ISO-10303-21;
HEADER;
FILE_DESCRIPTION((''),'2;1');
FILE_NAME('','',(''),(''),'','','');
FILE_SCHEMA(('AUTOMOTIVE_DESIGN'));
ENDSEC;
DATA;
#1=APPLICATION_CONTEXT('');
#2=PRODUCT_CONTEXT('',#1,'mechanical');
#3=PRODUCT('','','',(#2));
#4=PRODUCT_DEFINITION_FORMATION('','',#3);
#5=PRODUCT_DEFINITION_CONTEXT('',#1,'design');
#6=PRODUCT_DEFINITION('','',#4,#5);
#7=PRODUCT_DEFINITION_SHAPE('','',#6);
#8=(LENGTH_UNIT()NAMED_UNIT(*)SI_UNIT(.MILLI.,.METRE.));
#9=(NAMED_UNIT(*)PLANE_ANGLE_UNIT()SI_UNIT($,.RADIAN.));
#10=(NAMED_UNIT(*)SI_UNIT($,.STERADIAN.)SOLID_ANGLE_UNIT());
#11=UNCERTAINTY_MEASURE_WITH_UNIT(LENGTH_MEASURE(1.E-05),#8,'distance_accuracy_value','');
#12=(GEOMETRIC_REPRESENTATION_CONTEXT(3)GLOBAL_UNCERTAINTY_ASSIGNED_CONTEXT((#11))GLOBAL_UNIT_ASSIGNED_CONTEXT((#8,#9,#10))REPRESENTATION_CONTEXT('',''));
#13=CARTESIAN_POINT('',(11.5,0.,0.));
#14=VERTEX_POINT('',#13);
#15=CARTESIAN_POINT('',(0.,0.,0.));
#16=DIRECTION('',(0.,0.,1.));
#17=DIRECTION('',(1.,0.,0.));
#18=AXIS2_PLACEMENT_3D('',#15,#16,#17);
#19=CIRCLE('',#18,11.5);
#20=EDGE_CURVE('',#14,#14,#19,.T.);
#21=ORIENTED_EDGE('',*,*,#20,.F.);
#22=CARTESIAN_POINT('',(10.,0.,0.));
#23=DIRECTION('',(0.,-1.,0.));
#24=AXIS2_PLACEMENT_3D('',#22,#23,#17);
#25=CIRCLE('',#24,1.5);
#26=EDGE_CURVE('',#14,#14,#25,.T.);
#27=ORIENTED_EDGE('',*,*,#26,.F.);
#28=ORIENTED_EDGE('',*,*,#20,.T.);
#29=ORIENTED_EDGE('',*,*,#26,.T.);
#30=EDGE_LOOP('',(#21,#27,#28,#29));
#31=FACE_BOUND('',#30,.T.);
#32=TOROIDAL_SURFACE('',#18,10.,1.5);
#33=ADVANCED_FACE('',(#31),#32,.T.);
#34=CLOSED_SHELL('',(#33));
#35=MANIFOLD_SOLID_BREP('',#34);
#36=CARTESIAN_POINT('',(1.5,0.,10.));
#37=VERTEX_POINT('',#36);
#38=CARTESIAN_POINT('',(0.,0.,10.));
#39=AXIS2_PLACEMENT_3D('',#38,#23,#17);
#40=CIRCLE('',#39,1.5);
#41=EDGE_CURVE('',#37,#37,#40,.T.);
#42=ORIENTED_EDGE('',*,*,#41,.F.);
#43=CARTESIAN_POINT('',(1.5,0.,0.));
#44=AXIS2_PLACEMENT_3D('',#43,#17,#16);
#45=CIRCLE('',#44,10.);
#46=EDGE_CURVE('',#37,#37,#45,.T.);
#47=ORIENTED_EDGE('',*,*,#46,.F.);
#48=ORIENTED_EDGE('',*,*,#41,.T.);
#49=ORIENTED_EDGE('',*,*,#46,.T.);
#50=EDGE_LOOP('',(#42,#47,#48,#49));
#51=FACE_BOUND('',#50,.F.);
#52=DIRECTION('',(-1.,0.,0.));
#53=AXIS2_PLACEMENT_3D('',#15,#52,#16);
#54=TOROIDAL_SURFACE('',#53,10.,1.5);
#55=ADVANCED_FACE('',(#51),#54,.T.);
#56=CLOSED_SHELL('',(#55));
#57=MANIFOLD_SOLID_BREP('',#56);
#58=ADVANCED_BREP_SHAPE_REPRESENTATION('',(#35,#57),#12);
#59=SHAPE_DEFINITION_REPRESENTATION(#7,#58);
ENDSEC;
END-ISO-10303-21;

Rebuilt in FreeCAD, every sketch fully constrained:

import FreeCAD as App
import Part
import Sketcher
from FreeCAD import Vector
Q = App.Units.Quantity

doc = App.newDocument("Part")
body = doc.addObject("PartDesign::Body", "Body")

# Sketch on XZ plane
sketch1 = body.newObject("Sketcher::SketchObject", "Sketch")
sketch1.AttachmentSupport = (doc.getObject("XZ_Plane"), [""])
sketch1.MapMode = "FlatFace"
sketch1.addGeometry(Part.Circle(Vector(0, 10, 0), Vector(0, 0, 1), 1.5), False)
sketch1.addConstraint(Sketcher.Constraint("PointOnObject", 0, 3, -2))
sketch1.addConstraint(Sketcher.Constraint("Diameter", 0, Q("3 mm")))
sketch1.addConstraint(Sketcher.Constraint("DistanceY", -1, 1, 0, 3, Q("10 mm")))
revolution = body.newObject("PartDesign::Revolution", "Revolution")
revolution.Profile = sketch1
revolution.ReferenceAxis = (sketch1, ["H_Axis"])
revolution.Angle = 360
body2 = doc.addObject("PartDesign::Body", "Body001")

# Sketch on XZ plane
sketch2 = body2.newObject("Sketcher::SketchObject", "Sketch001")
sketch2.AttachmentSupport = (doc.getObject("XZ_Plane001"), [""])
sketch2.MapMode = "FlatFace"
sketch2.addGeometry(Part.Circle(Vector(10, 0, 0), Vector(0, 0, 1), 1.5), False)
sketch2.addConstraint(Sketcher.Constraint("PointOnObject", 0, 3, -1))
sketch2.addConstraint(Sketcher.Constraint("Diameter", 0, Q("3 mm")))
sketch2.addConstraint(Sketcher.Constraint("DistanceX", -1, 1, 0, 3, Q("10 mm")))
revolution2 = body2.newObject("PartDesign::Revolution", "Revolution001")
revolution2.Profile = sketch2
revolution2.ReferenceAxis = (sketch2, ["V_Axis"])
revolution2.Angle = 360

doc.recompute()
